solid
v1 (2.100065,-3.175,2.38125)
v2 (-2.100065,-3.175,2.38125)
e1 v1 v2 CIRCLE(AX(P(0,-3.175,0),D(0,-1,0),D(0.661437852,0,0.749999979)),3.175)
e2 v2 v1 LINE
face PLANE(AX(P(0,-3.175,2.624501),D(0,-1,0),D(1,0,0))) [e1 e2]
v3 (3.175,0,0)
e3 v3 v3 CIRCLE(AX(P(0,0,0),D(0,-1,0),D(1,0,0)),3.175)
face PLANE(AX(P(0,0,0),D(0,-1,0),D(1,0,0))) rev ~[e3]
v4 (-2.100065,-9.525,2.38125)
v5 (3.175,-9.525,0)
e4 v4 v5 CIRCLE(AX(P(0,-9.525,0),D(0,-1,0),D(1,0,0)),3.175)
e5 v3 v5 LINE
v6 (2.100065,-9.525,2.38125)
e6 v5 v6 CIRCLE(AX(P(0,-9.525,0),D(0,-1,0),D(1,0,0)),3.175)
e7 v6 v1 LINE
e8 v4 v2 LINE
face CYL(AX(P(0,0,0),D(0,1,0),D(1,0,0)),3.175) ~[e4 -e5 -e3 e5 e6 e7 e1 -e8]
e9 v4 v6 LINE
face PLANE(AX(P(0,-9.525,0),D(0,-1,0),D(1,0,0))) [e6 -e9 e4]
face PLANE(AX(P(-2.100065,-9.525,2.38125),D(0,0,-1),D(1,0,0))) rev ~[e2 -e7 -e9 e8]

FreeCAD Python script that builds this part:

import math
import FreeCAD as App
import Part
import Sketcher

V = App.Vector
Q = App.Units.Quantity

doc = App.newDocument("Part")
body = doc.addObject("PartDesign::Body", "Body")

# Sketch on XZ plane
sketch1 = body.newObject("Sketcher::SketchObject", "Sketch")
sketch1.AttachmentSupport = (doc.getObject("XZ_Plane"), [""])
sketch1.MapMode = "FlatFace"
sketch1.addGeometry(Part.Circle(V(0, 0, 0), V(0, 0, 1), 3.175), False)
sketch1.addConstraint([
    Sketcher.Constraint("Coincident", 0, 3, -1, 1),
    Sketcher.Constraint("Diameter", 0, Q("0.25 in")),
])
pad1 = body.newObject("PartDesign::Pad", "Pad")
pad1.Profile = sketch1
pad1.Length = Q("0.375 in")

# Sketch on XZ plane
sketch2 = body.newObject("Sketcher::SketchObject", "Sketch001")
sketch2.AttachmentSupport = (doc.getObject("XZ_Plane"), [""])
sketch2.MapMode = "FlatFace"
sketch2.AttachmentOffset = App.Placement(V(0, 0, 0.375 * 25.4), App.Rotation())
sketch2.addGeometry([
    Part.ArcOfCircle(Part.Circle(V(0, 0, 0), V(0, 0, 1), 3.175), math.radians(48.590376), math.radians(131.409624)),
    Part.LineSegment(V(-2.100065, 2.38125, 0), V(2.100065, 2.38125, 0)),
], False)
sketch2.addConstraint([
    Sketcher.Constraint("Coincident", 0, 1, 1, 2),
    Sketcher.Constraint("Coincident", 1, 1, 0, 2),
    Sketcher.Constraint("Horizontal", 1),
    Sketcher.Constraint("Coincident", 0, 3, -1, 1),
    Sketcher.Constraint("Radius", 0, Q("0.125 in")),
    Sketcher.Constraint("DistanceY", -1, 1, 0, 1, Q("0.09375 in")),
])
pocket1 = body.newObject("PartDesign::Pocket", "Pocket")
pocket1.Profile = sketch2
pocket1.Length = Q("0.25 in")

doc.recompute()
